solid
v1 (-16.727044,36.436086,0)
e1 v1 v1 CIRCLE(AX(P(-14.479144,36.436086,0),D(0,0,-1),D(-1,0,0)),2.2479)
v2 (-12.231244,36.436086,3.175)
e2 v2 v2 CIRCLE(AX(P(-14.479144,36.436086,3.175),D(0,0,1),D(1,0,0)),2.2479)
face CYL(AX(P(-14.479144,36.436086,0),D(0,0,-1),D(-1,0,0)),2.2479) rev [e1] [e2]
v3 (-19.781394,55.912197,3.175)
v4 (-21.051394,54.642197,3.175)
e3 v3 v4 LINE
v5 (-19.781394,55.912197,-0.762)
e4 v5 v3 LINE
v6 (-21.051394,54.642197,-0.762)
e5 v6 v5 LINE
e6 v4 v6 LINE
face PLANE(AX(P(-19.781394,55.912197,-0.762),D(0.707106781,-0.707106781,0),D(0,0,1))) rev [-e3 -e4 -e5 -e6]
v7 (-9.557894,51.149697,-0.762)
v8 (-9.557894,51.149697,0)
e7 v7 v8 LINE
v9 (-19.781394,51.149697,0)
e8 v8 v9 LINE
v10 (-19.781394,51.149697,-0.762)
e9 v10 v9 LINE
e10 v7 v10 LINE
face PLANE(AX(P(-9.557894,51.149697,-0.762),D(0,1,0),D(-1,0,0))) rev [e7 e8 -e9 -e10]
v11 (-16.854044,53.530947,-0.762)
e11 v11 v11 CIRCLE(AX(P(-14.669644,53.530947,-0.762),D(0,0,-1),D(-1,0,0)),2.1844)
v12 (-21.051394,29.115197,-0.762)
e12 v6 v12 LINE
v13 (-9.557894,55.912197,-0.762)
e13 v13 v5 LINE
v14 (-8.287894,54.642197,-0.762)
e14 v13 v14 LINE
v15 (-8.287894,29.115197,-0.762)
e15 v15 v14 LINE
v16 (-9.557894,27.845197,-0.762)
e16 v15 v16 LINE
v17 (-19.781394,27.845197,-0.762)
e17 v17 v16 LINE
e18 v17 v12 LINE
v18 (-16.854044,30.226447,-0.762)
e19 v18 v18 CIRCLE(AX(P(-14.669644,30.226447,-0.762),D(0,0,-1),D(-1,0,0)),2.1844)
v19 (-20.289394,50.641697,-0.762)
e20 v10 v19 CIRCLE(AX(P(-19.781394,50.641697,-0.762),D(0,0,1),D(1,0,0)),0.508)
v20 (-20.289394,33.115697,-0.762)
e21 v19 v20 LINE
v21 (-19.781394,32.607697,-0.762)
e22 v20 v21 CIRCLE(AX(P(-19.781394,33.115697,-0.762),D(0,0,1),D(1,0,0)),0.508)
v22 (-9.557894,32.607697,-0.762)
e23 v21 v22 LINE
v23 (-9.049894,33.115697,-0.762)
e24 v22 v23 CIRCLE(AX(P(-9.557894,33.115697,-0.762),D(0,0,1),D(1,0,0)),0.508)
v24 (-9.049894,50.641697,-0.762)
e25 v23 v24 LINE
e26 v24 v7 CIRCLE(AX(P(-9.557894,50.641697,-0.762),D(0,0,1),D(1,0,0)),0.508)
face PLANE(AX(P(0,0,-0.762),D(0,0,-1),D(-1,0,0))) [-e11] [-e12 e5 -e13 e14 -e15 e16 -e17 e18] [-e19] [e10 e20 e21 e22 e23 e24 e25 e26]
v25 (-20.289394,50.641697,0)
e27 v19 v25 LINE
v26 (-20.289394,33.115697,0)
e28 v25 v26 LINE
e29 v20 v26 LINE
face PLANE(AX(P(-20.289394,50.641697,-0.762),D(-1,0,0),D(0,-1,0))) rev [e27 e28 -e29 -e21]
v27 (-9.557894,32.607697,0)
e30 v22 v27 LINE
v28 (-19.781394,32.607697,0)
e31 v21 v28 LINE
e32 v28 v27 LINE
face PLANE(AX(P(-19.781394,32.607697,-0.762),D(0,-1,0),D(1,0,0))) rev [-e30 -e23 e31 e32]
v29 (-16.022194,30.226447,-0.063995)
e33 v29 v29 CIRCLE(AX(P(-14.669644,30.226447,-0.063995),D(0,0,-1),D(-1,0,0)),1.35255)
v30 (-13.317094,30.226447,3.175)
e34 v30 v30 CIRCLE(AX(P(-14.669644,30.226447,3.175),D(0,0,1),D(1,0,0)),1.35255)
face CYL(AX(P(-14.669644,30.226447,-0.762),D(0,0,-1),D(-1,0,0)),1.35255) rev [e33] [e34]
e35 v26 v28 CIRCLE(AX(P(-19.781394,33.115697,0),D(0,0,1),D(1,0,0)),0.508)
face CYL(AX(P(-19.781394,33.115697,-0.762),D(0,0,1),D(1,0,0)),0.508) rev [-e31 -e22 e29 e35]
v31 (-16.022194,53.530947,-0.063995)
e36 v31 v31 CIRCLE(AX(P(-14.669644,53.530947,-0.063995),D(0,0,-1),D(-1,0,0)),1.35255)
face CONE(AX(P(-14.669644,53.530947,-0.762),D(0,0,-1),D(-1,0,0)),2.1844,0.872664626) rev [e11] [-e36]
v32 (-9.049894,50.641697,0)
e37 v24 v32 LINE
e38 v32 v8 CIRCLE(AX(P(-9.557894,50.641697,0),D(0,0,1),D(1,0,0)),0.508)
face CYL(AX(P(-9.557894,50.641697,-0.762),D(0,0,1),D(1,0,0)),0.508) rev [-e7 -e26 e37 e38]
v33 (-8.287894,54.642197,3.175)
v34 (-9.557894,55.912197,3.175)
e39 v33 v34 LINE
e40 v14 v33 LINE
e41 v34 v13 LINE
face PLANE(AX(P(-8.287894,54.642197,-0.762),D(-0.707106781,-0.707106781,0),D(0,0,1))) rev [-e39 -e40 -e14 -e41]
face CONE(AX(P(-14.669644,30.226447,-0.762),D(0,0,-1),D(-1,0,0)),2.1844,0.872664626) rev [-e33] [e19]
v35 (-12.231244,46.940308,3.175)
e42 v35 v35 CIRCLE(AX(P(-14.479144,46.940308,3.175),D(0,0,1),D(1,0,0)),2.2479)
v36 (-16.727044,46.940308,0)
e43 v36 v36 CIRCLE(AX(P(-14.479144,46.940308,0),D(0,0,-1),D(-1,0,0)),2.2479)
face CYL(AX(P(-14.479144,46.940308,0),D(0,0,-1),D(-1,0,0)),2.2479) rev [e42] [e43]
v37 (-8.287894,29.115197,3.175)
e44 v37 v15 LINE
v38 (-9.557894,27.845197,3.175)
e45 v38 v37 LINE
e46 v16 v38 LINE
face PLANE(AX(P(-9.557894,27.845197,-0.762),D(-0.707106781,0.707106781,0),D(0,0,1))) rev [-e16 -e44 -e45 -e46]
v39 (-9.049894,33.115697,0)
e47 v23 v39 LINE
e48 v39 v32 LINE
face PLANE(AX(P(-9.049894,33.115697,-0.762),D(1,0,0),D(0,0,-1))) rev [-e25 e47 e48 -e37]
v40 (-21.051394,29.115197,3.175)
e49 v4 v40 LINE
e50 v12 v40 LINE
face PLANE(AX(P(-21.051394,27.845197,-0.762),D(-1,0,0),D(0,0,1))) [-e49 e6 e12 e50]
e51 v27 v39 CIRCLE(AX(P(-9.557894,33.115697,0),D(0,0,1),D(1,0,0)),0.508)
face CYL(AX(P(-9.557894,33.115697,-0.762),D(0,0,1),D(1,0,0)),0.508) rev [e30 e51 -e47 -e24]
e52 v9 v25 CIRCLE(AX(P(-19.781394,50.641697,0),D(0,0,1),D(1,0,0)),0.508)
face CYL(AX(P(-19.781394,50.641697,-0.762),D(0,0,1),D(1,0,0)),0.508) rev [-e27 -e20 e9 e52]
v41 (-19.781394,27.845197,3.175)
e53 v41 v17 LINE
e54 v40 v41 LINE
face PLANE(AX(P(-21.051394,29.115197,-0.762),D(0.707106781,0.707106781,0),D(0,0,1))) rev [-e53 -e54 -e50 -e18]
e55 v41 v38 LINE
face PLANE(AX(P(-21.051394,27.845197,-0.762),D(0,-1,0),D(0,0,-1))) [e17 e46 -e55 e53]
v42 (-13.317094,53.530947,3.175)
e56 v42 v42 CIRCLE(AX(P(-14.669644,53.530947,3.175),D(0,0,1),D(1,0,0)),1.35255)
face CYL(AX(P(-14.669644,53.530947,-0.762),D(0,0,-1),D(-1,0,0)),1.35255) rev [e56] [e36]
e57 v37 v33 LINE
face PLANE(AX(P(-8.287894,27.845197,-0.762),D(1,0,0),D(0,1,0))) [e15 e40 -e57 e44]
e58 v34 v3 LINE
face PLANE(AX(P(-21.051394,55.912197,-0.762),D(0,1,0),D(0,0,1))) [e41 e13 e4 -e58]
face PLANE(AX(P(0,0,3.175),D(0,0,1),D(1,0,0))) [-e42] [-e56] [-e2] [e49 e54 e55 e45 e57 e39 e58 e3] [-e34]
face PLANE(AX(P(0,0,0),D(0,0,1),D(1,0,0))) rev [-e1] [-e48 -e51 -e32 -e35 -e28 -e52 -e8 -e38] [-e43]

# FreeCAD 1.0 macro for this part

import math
import FreeCAD as App
import Part
import Sketcher

V = App.Vector
Q = App.Units.Quantity


def edges_at(feature, points):
    """Names of the edges that pass closest to the given points."""
    edges = feature.Shape.Edges
    near = lambda p: min(range(len(edges)), key=lambda i: edges[i].distToShape(Part.Vertex(*p))[0])
    return sorted({f"Edge{near(p) + 1}" for p in points})

doc = App.newDocument("Part")
body = doc.addObject("PartDesign::Body", "Body")

# Sketch on XY plane
sketch1 = doc.addObject("Sketcher::SketchObject", "Sketch")
body.addObject(sketch1)
sketch1.AttachmentSupport = (doc.XY_Plane, [""])
sketch1.MapMode = "FlatFace"
sketch1.addGeometry(Part.LineSegment(V(-21.1, 55.9, 0), V(-21.1, 27.8, 0)), False)
sketch1.addGeometry(Part.LineSegment(V(-21.1, 27.8, 0), V(-8.3, 27.8, 0)), False)
sketch1.addGeometry(Part.LineSegment(V(-8.3, 27.8, 0), V(-8.3, 55.9, 0)), False)
sketch1.addGeometry(Part.LineSegment(V(-8.3, 55.9, 0), V(-21.1, 55.9, 0)), False)
sketch1.addGeometry(Part.LineSegment(V(-9, 50.6, 0), V(-9, 33.1, 0)), False)
sketch1.addGeometry(Part.ArcOfCircle(Part.Circle(V(-9.6, 33.1, 0), V(0, 0, 1), 0.5), math.radians(-90), math.radians(0)), False)
sketch1.addGeometry(Part.LineSegment(V(-9.6, 32.6, 0), V(-19.8, 32.6, 0)), False)
sketch1.addGeometry(Part.ArcOfCircle(Part.Circle(V(-19.8, 33.1, 0), V(0, 0, 1), 0.5), math.radians(180), math.radians(270)), False)
sketch1.addGeometry(Part.LineSegment(V(-20.3, 33.1, 0), V(-20.3, 50.6, 0)), False)
sketch1.addGeometry(Part.ArcOfCircle(Part.Circle(V(-19.8, 50.6, 0), V(0, 0, 1), 0.5), math.radians(90), math.radians(180)), False)
sketch1.addGeometry(Part.LineSegment(V(-19.8, 51.1, 0), V(-9.6, 51.1, 0)), False)
sketch1.addGeometry(Part.ArcOfCircle(Part.Circle(V(-9.6, 50.6, 0), V(0, 0, 1), 0.5), math.radians(0), math.radians(90)), False)
sketch1.addConstraint(Sketcher.Constraint("Coincident", 0, 2, 1, 1))
sketch1.addConstraint(Sketcher.Constraint("Coincident", 1, 2, 2, 1))
sketch1.addConstraint(Sketcher.Constraint("Coincident", 2, 2, 3, 1))
sketch1.addConstraint(Sketcher.Constraint("Coincident", 3, 2, 0, 1))
sketch1.addConstraint(Sketcher.Constraint("Tangent", 4, 2, 5, 2))
sketch1.addConstraint(Sketcher.Constraint("Tangent", 5, 1, 6, 1))
sketch1.addConstraint(Sketcher.Constraint("Tangent", 6, 2, 7, 2))
sketch1.addConstraint(Sketcher.Constraint("Tangent", 7, 1, 8, 1))
sketch1.addConstraint(Sketcher.Constraint("Tangent", 8, 2, 9, 2))
sketch1.addConstraint(Sketcher.Constraint("Tangent", 9, 1, 10, 1))
sketch1.addConstraint(Sketcher.Constraint("Tangent", 10, 2, 11, 2))
sketch1.addConstraint(Sketcher.Constraint("Tangent", 11, 1, 4, 1))
sketch1.addConstraint(Sketcher.Constraint("Vertical", 0))
sketch1.addConstraint(Sketcher.Constraint("Horizontal", 1))
sketch1.addConstraint(Sketcher.Constraint("Vertical", 2))
sketch1.addConstraint(Sketcher.Constraint("Horizontal", 3))
sketch1.addConstraint(Sketcher.Constraint("Vertical", 4))
sketch1.addConstraint(Sketcher.Constraint("Horizontal", 6))
sketch1.addConstraint(Sketcher.Constraint("Vertical", 8))
sketch1.addConstraint(Sketcher.Constraint("Horizontal", 10))
sketch1.addConstraint(Sketcher.Constraint("Equal", 5, 7))
sketch1.addConstraint(Sketcher.Constraint("Equal", 7, 9))
sketch1.addConstraint(Sketcher.Constraint("Equal", 9, 11))
sketch1.addConstraint(Sketcher.Constraint("Radius", 5, Q("0.02 in")))
sketch1.addConstraint(Sketcher.Constraint("DistanceY", 4, 2, 4, 1, Q("0.69 in")))
sketch1.addConstraint(Sketcher.Constraint("DistanceY", 0, 2, 0, 1, Q("1.105 in")))
sketch1.addConstraint(Sketcher.Constraint("DistanceX", 0, 2, 7, 3, Q("0.05 in")))
sketch1.addConstraint(Sketcher.Constraint("DistanceX", 5, 3, 1, 2, Q("0.05 in")))
sketch1.addConstraint(Sketcher.Constraint("DistanceX", 1, 1, 1, 2, Q("0.5025 in")))
sketch1.addConstraint(Sketcher.Constraint("DistanceY", 1, 2, 5, 1, Q("0.1875 in")))
sketch1.addConstraint(Sketcher.Constraint("DistanceX", 5, 3, -1, 1, Q("9.557894 mm")))
sketch1.addConstraint(Sketcher.Constraint("DistanceY", -1, 1, 5, 3, Q("33.115697 mm")))
pad1 = doc.addObject("PartDesign::Pad", "Pad")
body.addObject(pad1)
pad1.Profile = sketch1
pad1.Length = Q("0.03 in")
pad1.Reversed = True

# Sketch on XY plane
sketch2 = doc.addObject("Sketcher::SketchObject", "Sketch001")
body.addObject(sketch2)
sketch2.AttachmentSupport = (doc.XY_Plane, [""])
sketch2.MapMode = "FlatFace"
sketch2.addGeometry(Part.LineSegment(V(-21, 56, 0), V(-21, 28, 0)), False)
sketch2.addGeometry(Part.LineSegment(V(-21, 28, 0), V(-8, 28, 0)), False)
sketch2.addGeometry(Part.LineSegment(V(-8, 28, 0), V(-8, 56, 0)), False)
sketch2.addGeometry(Part.LineSegment(V(-8, 56, 0), V(-21, 56, 0)), False)
sketch2.addConstraint(Sketcher.Constraint("Coincident", 0, 2, 1, 1))
sketch2.addConstraint(Sketcher.Constraint("Coincident", 1, 2, 2, 1))
sketch2.addConstraint(Sketcher.Constraint("Coincident", 2, 2, 3, 1))
sketch2.addConstraint(Sketcher.Constraint("Coincident", 3, 2, 0, 1))
sketch2.addConstraint(Sketcher.Constraint("Vertical", 0))
sketch2.addConstraint(Sketcher.Constraint("Horizontal", 1))
sketch2.addConstraint(Sketcher.Constraint("Vertical", 2))
sketch2.addConstraint(Sketcher.Constraint("Horizontal", 3))
sketch2.addConstraint(Sketcher.Constraint("DistanceY", 0, 2, 0, 1, Q("1.105 in")))
sketch2.addConstraint(Sketcher.Constraint("DistanceX", 1, 1, 1, 2, Q("0.5025 in")))
sketch2.addConstraint(Sketcher.Constraint("DistanceX", 0, 2, -1, 1, Q("21.051394 mm")))
sketch2.addConstraint(Sketcher.Constraint("DistanceY", -1, 1, 0, 2, Q("27.845197 mm")))
pad2 = doc.addObject("PartDesign::Pad", "Pad001")
body.addObject(pad2)
pad2.Profile = sketch2
pad2.Length = Q("0.125 in")

# Sketch on XY plane
sketch3 = doc.addObject("Sketcher::SketchObject", "Sketch002")
body.addObject(sketch3)
sketch3.AttachmentSupport = (doc.XY_Plane, [""])
sketch3.MapMode = "FlatFace"
sketch3.AttachmentOffset = App.Placement(V(0, 0, -0.03 * 25.4), App.Rotation())
sketch3.addGeometry(Part.Circle(V(-14.7, 53.5, 0), V(0, 0, 1), 1.4), False)
sketch3.addGeometry(Part.Circle(V(-14.7, 30.2, 0), V(0, 0, 1), 1.4), False)
sketch3.addConstraint(Sketcher.Constraint("Equal", 0, 1))
sketch3.addConstraint(Sketcher.Constraint("Vertical", 0, 3, 1, 3))
sketch3.addConstraint(Sketcher.Constraint("Diameter", 0, Q("0.1065 in")))
sketch3.addConstraint(Sketcher.Constraint("DistanceY", 1, 3, 0, 3, Q("0.9175 in")))
sketch3.addConstraint(Sketcher.Constraint("DistanceX", 0, 3, -1, 1, Q("14.669644 mm")))
sketch3.addConstraint(Sketcher.Constraint("DistanceY", -1, 1, 0, 3, Q("53.530947 mm")))
doc.recompute()
hole = doc.addObject("PartDesign::Hole", "Hole")
body.addObject(hole)
hole.Profile = sketch3
hole.ThreadType = "None"
hole.Diameter = Q("0.1065 in")
hole.DepthType = "Dimension"
hole.Depth = Q("0.155 in")
hole.DrillPoint = "Flat"
hole.HoleCutType = "Countersink"
hole.HoleCutDiameter = Q("0.172 in")
hole.HoleCutCountersinkAngle = 100
hole.Reversed = True

# Sketch on XY plane
sketch4 = doc.addObject("Sketcher::SketchObject", "Sketch003")
body.addObject(sketch4)
sketch4.AttachmentSupport = (doc.XY_Plane, [""])
sketch4.MapMode = "FlatFace"
sketch4.addGeometry(Part.Circle(V(-14.5, 36.4, 0), V(0, 0, 1), 2.2), False)
sketch4.addGeometry(Part.Circle(V(-14.5, 46.9, 0), V(0, 0, 1), 2.2), False)
sketch4.addConstraint(Sketcher.Constraint("Equal", 0, 1))
sketch4.addConstraint(Sketcher.Constraint("Vertical", 0, 3, 1, 3))
sketch4.addConstraint(Sketcher.Constraint("Diameter", 0, Q("0.177 in")))
sketch4.addConstraint(Sketcher.Constraint("DistanceY", 0, 3, 1, 3, Q("10.504222 mm")))
sketch4.addConstraint(Sketcher.Constraint("DistanceX", 0, 3, -1, 1, Q("14.479144 mm")))
sketch4.addConstraint(Sketcher.Constraint("DistanceY", -1, 1, 0, 3, Q("36.436086 mm")))
doc.recompute()
hole2 = doc.addObject("PartDesign::Hole", "Hole001")
body.addObject(hole2)
hole2.Profile = sketch4
hole2.ThreadType = "None"
hole2.Diameter = Q("0.177 in")
hole2.DepthType = "Dimension"
hole2.Depth = Q("0.125 in")
hole2.DrillPoint = "Flat"
hole2.Reversed = True
doc.recompute()

chamfer = doc.addObject("PartDesign::Chamfer", "Chamfer")
body.addObject(chamfer)
chamfer.Base = (hole2, edges_at(hole2, [
    (-8.288, 27.845, 1.206),
    (-21.051, 27.845, 1.206),
    (-21.051, 55.912, 1.206),
    (-8.288, 55.912, 1.206),
]))
chamfer.Size = Q("0.05 in")

doc.recompute()
